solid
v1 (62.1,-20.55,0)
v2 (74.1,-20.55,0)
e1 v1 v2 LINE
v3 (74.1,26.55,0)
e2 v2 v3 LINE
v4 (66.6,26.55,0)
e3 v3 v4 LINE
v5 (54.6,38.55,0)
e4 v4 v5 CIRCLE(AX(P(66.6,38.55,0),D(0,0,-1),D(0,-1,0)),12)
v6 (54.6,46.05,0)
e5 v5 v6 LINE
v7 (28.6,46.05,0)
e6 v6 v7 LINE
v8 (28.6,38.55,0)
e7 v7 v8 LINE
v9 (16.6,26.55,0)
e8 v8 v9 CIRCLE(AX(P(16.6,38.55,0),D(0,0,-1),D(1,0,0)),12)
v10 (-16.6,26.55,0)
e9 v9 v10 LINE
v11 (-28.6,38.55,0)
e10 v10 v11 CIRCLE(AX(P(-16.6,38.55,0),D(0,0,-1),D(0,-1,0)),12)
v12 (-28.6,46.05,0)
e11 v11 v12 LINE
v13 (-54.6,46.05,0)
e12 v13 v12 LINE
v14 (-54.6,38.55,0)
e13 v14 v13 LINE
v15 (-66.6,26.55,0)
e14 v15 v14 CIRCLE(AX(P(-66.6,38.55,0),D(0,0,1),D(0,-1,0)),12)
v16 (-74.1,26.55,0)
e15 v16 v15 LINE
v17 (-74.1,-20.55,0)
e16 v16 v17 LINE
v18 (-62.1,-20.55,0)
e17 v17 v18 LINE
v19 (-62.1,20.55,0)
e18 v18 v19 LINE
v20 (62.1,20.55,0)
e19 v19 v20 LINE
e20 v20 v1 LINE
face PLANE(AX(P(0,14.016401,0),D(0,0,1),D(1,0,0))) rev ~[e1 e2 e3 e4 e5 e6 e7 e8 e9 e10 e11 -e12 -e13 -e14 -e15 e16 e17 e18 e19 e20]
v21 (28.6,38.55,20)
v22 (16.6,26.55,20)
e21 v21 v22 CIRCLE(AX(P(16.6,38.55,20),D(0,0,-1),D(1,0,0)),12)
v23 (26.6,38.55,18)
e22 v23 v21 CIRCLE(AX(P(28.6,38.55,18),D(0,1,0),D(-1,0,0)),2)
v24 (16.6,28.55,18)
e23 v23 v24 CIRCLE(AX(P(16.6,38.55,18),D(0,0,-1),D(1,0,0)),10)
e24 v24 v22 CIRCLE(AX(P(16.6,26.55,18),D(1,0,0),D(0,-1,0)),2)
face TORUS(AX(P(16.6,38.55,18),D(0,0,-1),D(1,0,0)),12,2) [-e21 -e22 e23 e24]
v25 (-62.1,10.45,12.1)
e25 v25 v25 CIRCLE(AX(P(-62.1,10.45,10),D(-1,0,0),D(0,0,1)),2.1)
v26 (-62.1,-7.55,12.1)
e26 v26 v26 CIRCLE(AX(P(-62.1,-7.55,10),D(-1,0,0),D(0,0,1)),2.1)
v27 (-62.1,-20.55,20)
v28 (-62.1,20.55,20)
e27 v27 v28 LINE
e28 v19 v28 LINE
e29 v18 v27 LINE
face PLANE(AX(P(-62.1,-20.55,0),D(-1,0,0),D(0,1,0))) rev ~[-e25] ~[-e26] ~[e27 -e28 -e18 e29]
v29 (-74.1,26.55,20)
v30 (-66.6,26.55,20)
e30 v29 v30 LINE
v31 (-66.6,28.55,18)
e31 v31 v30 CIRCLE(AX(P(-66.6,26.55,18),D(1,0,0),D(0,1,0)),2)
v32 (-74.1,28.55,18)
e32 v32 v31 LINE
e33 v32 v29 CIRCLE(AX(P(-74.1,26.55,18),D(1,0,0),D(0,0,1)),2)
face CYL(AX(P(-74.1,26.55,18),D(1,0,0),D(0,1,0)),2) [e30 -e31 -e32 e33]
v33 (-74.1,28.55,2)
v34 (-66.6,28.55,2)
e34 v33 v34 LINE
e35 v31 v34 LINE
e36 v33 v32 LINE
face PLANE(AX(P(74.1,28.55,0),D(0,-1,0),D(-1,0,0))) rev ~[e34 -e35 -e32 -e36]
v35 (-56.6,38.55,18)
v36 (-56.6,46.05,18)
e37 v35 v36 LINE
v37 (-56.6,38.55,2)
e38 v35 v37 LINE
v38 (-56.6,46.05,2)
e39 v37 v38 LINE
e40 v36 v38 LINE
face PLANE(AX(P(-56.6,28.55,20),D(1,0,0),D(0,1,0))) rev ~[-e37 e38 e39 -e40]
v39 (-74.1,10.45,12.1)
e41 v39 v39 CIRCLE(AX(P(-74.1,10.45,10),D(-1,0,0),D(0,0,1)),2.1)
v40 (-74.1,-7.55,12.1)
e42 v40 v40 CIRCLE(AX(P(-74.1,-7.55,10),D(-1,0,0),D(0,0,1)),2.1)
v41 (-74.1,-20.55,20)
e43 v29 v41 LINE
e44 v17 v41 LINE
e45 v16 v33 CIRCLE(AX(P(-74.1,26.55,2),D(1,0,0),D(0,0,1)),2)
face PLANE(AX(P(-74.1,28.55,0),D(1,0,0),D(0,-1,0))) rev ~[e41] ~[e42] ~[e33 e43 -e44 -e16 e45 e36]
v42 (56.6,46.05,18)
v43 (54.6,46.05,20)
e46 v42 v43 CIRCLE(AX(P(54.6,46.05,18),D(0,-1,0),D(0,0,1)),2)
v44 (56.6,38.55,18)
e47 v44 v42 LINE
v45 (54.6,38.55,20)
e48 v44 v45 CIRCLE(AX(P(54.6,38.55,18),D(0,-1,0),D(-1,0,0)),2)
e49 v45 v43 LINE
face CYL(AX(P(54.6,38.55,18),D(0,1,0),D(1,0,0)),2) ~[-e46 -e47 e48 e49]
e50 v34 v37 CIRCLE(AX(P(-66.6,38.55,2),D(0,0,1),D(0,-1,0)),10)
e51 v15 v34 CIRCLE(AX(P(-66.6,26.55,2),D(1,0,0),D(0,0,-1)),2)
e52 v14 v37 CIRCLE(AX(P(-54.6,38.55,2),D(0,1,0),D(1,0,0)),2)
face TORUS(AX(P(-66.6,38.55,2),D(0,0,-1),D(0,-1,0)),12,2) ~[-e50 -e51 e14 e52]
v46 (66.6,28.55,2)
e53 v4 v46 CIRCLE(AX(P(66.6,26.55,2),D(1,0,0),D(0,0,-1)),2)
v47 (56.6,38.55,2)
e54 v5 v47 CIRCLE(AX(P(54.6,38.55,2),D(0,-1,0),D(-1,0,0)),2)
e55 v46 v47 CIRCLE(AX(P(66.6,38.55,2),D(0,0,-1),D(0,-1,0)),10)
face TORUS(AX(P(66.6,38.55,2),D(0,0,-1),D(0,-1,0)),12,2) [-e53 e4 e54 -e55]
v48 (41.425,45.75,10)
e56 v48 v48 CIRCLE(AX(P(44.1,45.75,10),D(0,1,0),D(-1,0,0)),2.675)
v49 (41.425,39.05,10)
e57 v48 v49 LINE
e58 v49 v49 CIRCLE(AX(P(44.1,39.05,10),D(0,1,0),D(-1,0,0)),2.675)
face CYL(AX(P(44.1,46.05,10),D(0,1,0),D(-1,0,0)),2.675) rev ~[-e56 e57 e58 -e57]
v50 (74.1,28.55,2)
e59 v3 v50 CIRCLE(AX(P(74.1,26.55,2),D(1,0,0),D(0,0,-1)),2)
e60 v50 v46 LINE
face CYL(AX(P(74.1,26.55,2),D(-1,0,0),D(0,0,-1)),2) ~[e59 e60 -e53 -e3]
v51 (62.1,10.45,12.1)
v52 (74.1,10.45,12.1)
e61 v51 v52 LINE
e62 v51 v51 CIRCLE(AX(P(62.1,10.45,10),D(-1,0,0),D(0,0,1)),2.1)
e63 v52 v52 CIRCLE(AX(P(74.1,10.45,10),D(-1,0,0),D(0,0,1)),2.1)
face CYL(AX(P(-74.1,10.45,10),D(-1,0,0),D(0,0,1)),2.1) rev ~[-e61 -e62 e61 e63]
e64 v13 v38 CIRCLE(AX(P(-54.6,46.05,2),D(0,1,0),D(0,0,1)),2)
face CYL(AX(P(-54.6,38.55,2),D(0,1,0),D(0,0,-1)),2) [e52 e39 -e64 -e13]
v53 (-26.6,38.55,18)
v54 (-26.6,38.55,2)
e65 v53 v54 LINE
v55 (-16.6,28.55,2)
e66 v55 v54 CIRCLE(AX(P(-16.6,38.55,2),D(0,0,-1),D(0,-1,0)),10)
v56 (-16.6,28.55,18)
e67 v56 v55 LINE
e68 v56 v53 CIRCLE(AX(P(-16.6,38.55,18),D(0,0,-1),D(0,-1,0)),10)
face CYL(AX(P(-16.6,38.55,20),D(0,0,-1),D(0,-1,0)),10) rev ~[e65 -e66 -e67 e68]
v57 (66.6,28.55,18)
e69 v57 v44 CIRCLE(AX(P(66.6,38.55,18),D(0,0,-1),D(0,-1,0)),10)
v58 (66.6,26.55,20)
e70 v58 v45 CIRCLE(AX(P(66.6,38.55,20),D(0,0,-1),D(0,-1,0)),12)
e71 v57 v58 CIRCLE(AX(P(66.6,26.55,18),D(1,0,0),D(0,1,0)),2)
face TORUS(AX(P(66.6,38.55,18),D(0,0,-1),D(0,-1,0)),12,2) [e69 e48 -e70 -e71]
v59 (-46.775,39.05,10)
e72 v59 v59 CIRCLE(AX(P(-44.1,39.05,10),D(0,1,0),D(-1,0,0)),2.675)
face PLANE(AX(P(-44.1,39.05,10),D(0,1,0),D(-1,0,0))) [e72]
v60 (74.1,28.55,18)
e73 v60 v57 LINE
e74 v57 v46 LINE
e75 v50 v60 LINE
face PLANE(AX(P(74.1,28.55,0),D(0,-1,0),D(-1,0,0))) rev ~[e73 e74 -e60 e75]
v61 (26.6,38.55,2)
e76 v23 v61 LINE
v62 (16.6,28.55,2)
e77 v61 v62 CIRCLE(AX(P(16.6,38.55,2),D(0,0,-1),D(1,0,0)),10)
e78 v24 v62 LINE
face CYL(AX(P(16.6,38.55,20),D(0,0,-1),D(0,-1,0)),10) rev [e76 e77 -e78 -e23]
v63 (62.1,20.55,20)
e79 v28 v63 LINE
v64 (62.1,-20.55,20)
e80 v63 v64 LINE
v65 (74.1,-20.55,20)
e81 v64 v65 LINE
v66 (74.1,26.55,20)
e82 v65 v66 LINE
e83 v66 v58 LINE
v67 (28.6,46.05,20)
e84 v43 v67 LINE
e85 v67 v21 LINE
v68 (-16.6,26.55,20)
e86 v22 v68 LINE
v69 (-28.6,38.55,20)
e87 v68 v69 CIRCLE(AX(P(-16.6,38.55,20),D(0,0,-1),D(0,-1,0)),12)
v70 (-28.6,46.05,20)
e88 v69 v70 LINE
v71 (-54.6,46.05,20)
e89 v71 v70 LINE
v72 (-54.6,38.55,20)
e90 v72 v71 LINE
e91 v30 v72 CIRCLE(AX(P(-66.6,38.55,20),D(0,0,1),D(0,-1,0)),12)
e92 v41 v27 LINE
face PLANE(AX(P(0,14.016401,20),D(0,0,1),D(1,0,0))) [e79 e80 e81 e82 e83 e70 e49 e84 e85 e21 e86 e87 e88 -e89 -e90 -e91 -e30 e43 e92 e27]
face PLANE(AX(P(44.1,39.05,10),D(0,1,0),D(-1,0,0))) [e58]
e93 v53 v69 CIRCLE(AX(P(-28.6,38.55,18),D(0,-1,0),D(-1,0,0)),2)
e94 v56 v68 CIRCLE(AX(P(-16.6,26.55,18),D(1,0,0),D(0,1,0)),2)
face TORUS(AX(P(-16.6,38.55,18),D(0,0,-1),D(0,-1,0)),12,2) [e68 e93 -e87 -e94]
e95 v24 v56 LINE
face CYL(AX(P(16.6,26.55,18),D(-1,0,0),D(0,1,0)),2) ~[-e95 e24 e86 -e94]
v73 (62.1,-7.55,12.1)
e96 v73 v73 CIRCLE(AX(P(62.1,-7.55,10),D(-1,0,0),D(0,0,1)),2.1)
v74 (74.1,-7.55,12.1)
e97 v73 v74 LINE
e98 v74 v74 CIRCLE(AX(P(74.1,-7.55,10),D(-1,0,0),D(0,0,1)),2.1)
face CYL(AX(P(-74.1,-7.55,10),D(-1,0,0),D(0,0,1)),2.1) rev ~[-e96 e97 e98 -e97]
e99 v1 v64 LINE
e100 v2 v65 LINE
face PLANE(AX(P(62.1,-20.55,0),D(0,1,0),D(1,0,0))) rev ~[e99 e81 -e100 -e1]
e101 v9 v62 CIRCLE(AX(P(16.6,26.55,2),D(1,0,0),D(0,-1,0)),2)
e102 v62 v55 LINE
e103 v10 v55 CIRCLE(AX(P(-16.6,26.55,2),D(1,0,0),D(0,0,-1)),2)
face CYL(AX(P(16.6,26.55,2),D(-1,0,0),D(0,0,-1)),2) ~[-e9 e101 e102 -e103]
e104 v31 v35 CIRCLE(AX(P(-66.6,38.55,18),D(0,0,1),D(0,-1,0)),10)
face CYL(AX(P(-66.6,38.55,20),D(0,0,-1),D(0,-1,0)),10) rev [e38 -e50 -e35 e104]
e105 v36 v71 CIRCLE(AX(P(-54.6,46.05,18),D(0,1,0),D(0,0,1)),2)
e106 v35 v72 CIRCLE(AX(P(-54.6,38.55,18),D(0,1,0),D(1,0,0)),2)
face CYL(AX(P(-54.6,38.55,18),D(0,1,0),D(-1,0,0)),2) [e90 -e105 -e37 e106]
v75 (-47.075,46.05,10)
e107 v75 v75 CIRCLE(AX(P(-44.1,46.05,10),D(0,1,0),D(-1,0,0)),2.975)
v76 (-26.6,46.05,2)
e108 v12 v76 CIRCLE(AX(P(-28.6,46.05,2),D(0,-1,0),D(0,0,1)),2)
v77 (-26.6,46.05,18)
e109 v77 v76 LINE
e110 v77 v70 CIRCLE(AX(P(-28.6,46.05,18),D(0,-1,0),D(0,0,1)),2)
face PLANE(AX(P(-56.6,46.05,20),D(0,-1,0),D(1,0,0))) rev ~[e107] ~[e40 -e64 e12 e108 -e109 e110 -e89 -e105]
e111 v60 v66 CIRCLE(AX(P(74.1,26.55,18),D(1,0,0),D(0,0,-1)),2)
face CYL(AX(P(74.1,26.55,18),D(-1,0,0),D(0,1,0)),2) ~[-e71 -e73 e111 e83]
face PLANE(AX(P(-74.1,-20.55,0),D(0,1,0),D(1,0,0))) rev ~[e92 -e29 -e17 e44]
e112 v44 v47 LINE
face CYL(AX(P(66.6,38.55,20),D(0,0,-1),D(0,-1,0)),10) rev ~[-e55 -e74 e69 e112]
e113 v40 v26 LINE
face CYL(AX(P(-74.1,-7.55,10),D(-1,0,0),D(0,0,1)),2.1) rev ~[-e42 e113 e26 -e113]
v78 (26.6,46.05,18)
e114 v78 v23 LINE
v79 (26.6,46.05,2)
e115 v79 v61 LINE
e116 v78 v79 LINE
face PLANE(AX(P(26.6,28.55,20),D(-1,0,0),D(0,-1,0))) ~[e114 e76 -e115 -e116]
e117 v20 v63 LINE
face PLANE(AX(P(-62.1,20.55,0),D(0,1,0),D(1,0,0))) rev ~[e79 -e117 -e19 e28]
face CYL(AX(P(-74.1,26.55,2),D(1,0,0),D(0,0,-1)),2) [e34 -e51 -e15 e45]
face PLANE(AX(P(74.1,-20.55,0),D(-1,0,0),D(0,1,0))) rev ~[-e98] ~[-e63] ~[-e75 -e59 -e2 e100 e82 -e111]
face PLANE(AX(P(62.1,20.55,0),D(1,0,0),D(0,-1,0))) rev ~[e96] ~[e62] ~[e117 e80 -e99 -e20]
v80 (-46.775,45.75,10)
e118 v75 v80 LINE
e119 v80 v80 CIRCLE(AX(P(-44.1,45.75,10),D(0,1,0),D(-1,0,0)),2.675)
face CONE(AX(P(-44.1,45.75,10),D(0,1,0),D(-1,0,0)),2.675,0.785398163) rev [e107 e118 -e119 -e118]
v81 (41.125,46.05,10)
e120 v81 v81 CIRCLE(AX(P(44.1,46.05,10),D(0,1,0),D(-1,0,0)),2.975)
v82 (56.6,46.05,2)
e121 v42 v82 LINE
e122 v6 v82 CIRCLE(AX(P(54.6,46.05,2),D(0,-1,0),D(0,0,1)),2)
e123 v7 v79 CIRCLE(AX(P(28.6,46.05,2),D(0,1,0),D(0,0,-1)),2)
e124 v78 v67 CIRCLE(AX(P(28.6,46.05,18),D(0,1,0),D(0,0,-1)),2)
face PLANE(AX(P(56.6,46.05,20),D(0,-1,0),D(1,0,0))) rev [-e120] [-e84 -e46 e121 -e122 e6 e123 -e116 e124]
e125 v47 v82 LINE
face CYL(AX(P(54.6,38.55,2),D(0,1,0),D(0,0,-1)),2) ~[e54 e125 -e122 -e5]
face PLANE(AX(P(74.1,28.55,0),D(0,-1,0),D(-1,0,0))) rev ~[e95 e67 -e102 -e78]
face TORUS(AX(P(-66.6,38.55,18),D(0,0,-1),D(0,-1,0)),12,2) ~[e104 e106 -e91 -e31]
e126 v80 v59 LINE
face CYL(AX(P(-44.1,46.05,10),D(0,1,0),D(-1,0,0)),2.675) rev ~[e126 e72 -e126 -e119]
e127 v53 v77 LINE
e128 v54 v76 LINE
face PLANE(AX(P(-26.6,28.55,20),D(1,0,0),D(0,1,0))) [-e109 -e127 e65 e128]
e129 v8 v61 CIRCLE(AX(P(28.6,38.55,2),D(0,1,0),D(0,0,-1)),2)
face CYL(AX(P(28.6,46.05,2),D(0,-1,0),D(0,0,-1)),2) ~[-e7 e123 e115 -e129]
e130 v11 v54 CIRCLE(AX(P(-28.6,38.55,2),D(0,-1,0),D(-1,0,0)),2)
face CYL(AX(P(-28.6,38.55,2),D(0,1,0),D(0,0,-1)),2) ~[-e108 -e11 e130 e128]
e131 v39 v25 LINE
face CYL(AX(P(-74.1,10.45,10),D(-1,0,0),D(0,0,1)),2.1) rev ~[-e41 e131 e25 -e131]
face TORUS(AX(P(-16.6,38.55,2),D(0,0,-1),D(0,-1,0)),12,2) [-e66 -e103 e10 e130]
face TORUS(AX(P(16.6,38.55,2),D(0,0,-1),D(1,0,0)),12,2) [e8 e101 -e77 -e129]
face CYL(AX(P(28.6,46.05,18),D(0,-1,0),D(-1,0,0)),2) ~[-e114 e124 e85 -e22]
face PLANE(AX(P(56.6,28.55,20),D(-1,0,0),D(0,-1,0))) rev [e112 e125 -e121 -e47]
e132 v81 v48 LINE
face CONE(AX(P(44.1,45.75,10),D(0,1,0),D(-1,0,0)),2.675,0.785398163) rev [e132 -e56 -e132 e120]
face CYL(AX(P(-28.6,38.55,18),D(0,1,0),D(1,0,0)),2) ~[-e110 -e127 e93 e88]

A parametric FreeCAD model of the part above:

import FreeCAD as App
import Part
import Sketcher
Q = App.Units.Quantity


def edges_at(feature, points):
    """Names of the edges that pass closest to the given points."""
    edges = feature.Shape.Edges
    near = lambda p: min(range(len(edges)), key=lambda i: edges[i].distToShape(Part.Vertex(*p))[0])
    return sorted({f"Edge{near(p) + 1}" for p in points})

doc = App.newDocument("Part")
params = doc.addObject("Spreadsheet::Sheet", "Params")
for row, (alias, value) in enumerate([
    ("sketch1_width", "12 mm"),
    ("sketch1_width2", "124.2 mm"),
    ("sketch1_height", "49.1 mm"),
    ("sketch1_height2", "41.1 mm"),
    ("pad1_length", "20 mm"),
    ("sketch2_diameter", "4.2 mm"),
    ("pocket1_length", "149 mm"),
    ("sketch3_width", "30 mm"),
    ("sketch3_height", "17.5 mm"),
    ("pad2_length", "20 mm"),
    ("fillet_radius", "10 mm"),
    ("fillet2_radius", "10 mm"),
    ("fillet3_radius", "2 mm"),
    ("sketch4_diameter", "5.35 mm"),
    ("pocket2_length", "7 mm"),
    ("chamfer_size", "0.3 mm"),
], start=1):
    params.set(f"A{row}", alias)
    params.set(f"B{row}", "=" + value)
    params.setAlias(f"B{row}", alias)

body = doc.addObject("PartDesign::Body", "Body")

# Sketch on XY plane
sketch1 = body.newObject("Sketcher::SketchObject", "Sketch")
sketch1.AttachmentSupport = (doc.getObject("XY_Plane"), [""])
sketch1.MapMode = "FlatFace"
sketch1.addGeometry([
    Part.LineSegment(App.Vector(-74, 29, 0), App.Vector(-74, -21, 0)),  # 0
    Part.LineSegment(App.Vector(-74, -21, 0), App.Vector(-62, -21, 0)),  # 1
    Part.LineSegment(App.Vector(-62, -21, 0), App.Vector(-62, 21, 0)),  # 2
    Part.LineSegment(App.Vector(-62, 21, 0), App.Vector(62, 21, 0)),  # 3
    Part.LineSegment(App.Vector(62, 21, 0), App.Vector(62, -21, 0)),  # 4
    Part.LineSegment(App.Vector(62, -21, 0), App.Vector(74, -21, 0)),  # 5
    Part.LineSegment(App.Vector(74, -21, 0), App.Vector(74, 29, 0)),  # 6
    Part.LineSegment(App.Vector(74, 29, 0), App.Vector(-74, 29, 0)),  # 7
], False)
sketch1.addConstraint([
    Sketcher.Constraint("Coincident", 0, 2, 1, 1),
    Sketcher.Constraint("Coincident", 1, 2, 2, 1),
    Sketcher.Constraint("Coincident", 2, 2, 3, 1),
    Sketcher.Constraint("Coincident", 3, 2, 4, 1),
    Sketcher.Constraint("Coincident", 4, 2, 5, 1),
    Sketcher.Constraint("Coincident", 5, 2, 6, 1),
    Sketcher.Constraint("Coincident", 6, 2, 7, 1),
    Sketcher.Constraint("Coincident", 7, 2, 0, 1),
    Sketcher.Constraint("Vertical", 0),
    Sketcher.Constraint("Horizontal", 1),
    Sketcher.Constraint("Vertical", 2),
    Sketcher.Constraint("Horizontal", 3),
    Sketcher.Constraint("Vertical", 4),
    Sketcher.Constraint("Horizontal", 5),
    Sketcher.Constraint("Vertical", 6),
    Sketcher.Constraint("Horizontal", 7),
    Sketcher.Constraint("Symmetric", 1, 2, 3, 2, -1, 1),
    Sketcher.Constraint("Symmetric", 0, 2, 5, 2, -2),
    Sketcher.Constraint("DistanceX", 1, 1, 1, 2, Q("12 mm")),
    Sketcher.Constraint("DistanceX", 3, 1, 3, 2, Q("124.2 mm")),
    Sketcher.Constraint("DistanceY", 0, 2, 0, 1, Q("49.1 mm")),
    Sketcher.Constraint("DistanceY", 2, 1, 2, 2, Q("41.1 mm")),
])
sketch1.setExpression("Constraints[18]", "Params.sketch1_width")
sketch1.setExpression("Constraints[19]", "Params.sketch1_width2")
sketch1.setExpression("Constraints[20]", "Params.sketch1_height")
sketch1.setExpression("Constraints[21]", "Params.sketch1_height2")
pad1 = body.newObject("PartDesign::Pad", "Pad")
pad1.Profile = sketch1
pad1.setExpression("Length", "Params.pad1_length")

# Sketch on YZ plane
sketch2 = body.newObject("Sketcher::SketchObject", "Sketch001")
sketch2.AttachmentSupport = (doc.getObject("YZ_Plane"), [""])
sketch2.MapMode = "FlatFace"
sketch2.AttachmentOffset = App.Placement(App.Vector(0, 0, -74.1), App.Rotation())
sketch2.addGeometry([
    Part.Circle(App.Vector(10.4, 10, 0), App.Vector(0, 0, 1), 2.1),
    Part.Circle(App.Vector(-7.5, 10, 0), App.Vector(0, 0, 1), 2.1),
], False)
sketch2.addConstraint([
    Sketcher.Constraint("Equal", 0, 1),
    Sketcher.Constraint("Horizontal", 0, 3, 1, 3),
    Sketcher.Constraint("Diameter", 0, Q("4.2 mm")),
    Sketcher.Constraint("DistanceY", -1, 1, 0, 3, Q("10 mm")),
    Sketcher.Constraint("DistanceX", 1, 3, 0, 3, Q("18 mm")),
    Sketcher.Constraint("DistanceX", -1, 1, 0, 3, Q("10.45 mm")),
])
sketch2.setExpression("Constraints[2]", "Params.sketch2_diameter")
pocket1 = body.newObject("PartDesign::Pocket", "Pocket")
pocket1.Profile = sketch2
pocket1.setExpression("Length", "Params.pocket1_length")
pocket1.Reversed = True

# Sketch on XY plane
sketch3 = body.newObject("Sketcher::SketchObject", "Sketch002")
sketch3.AttachmentSupport = (doc.getObject("XY_Plane"), [""])
sketch3.MapMode = "FlatFace"
sketch3.AttachmentOffset = App.Placement(App.Vector(0, 0, 20), App.Rotation())
sketch3.addGeometry([
    Part.LineSegment(App.Vector(-57, 46, 0), App.Vector(-57, 29, 0)),
    Part.LineSegment(App.Vector(-57, 29, 0), App.Vector(-27, 29, 0)),
    Part.LineSegment(App.Vector(-27, 29, 0), App.Vector(-27, 46, 0)),
    Part.LineSegment(App.Vector(-27, 46, 0), App.Vector(-57, 46, 0)),
], False)
sketch3.addConstraint([
    Sketcher.Constraint("Coincident", 0, 2, 1, 1),
    Sketcher.Constraint("Coincident", 1, 2, 2, 1),
    Sketcher.Constraint("Coincident", 2, 2, 3, 1),
    Sketcher.Constraint("Coincident", 3, 2, 0, 1),
    Sketcher.Constraint("Vertical", 0),
    Sketcher.Constraint("Horizontal", 1),
    Sketcher.Constraint("Vertical", 2),
    Sketcher.Constraint("Horizontal", 3),
    Sketcher.Constraint("DistanceX", 1, 1, 1, 2, Q("30 mm")),
    Sketcher.Constraint("DistanceY", 0, 2, 0, 1, Q("17.5 mm")),
    Sketcher.Constraint("DistanceX", 0, 2, -1, 1, Q("56.6 mm")),
    Sketcher.Constraint("DistanceY", -1, 1, 0, 2, Q("28.55 mm")),
])
sketch3.setExpression("Constraints[8]", "Params.sketch3_width")
sketch3.setExpression("Constraints[9]", "Params.sketch3_height")
pad2 = body.newObject("PartDesign::Pad", "Pad001")
pad2.Profile = sketch3
pad2.setExpression("Length", "Params.pad2_length")
pad2.Reversed = True
doc.recompute()

fillet = body.newObject("PartDesign::Fillet", "Fillet")
fillet.Base = (pad2, edges_at(pad2, [(-26.6, 28.55, 10), (-56.6, 28.55, 10)]))
fillet.setExpression("Radius", "Params.fillet_radius")
doc.recompute()

mirrored = body.newObject("PartDesign::Mirrored", "Mirrored")
mirrored.Originals = [pad2]
mirrored.MirrorPlane = (doc.getObject("YZ_Plane"), [""])
body.Tip = mirrored
doc.recompute()

fillet2 = body.newObject("PartDesign::Fillet", "Fillet001")
fillet2.Base = (mirrored, edges_at(mirrored, [(26.6, 28.55, 10), (56.6, 28.55, 10)]))
fillet2.setExpression("Radius", "Params.fillet2_radius")
doc.recompute()

fillet3 = body.newObject("PartDesign::Fillet", "Fillet002")
fillet3.Base = (fillet2, edges_at(fillet2, [
    (70.35, 28.55, 20),
    (-56.6, 42.3, 0),
    (-56.6, 42.3, 20),
    (-26.6, 42.3, 20),
    (-26.6, 42.3, 0),
    (-70.35, 28.55, 0),
    (-70.35, 28.55, 20),
    (-23.671, 31.479, 20),
    (-23.671, 31.479, 0),
    (-59.529, 31.479, 20),
    (-59.529, 31.479, 0),
    (56.6, 42.3, 20),
    (56.6, 42.3, 0),
    (26.6, 42.3, 20),
    (26.6, 42.3, 0),
    (0, 28.55, 0),
    (0, 28.55, 20),
    (23.671, 31.479, 20),
    (23.671, 31.479, 0),
    (59.529, 31.479, 20),
    (59.529, 31.479, 0),
    (70.35, 28.55, 0),
]))
fillet3.setExpression("Radius", "Params.fillet3_radius")

# Sketch on XZ plane
sketch4 = body.newObject("Sketcher::SketchObject", "Sketch003")
sketch4.AttachmentSupport = (doc.getObject("XZ_Plane"), [""])
sketch4.MapMode = "FlatFace"
sketch4.AttachmentOffset = App.Placement(App.Vector(0, 0, -46.05), App.Rotation())
sketch4.addGeometry([
    Part.Circle(App.Vector(44.1, 10, 0), App.Vector(0, 0, 1), 2.7),
    Part.Circle(App.Vector(-44.1, 10, 0), App.Vector(0, 0, 1), 2.7),
], False)
sketch4.addConstraint([
    Sketcher.Constraint("Equal", 0, 1),
    Sketcher.Constraint("Symmetric", 0, 3, 1, 3, -2),
    Sketcher.Constraint("Diameter", 0, Q("5.35 mm")),
    Sketcher.Constraint("DistanceY", -1, 1, 0, 3, Q("10 mm")),
    Sketcher.Constraint("DistanceX", -1, 1, 0, 3, Q("44.1 mm")),
])
sketch4.setExpression("Constraints[2]", "Params.sketch4_diameter")
pocket2 = body.newObject("PartDesign::Pocket", "Pocket001")
pocket2.Profile = sketch4
pocket2.setExpression("Length", "Params.pocket2_length")
pocket2.Reversed = True
doc.recompute()

chamfer = body.newObject("PartDesign::Chamfer", "Chamfer")
chamfer.Base = (pocket2, edges_at(pocket2, [(46.775, 46.05, 10), (-41.425, 46.05, 10)]))
chamfer.setExpression("Size", "Params.chamfer_size")

doc.recompute()
